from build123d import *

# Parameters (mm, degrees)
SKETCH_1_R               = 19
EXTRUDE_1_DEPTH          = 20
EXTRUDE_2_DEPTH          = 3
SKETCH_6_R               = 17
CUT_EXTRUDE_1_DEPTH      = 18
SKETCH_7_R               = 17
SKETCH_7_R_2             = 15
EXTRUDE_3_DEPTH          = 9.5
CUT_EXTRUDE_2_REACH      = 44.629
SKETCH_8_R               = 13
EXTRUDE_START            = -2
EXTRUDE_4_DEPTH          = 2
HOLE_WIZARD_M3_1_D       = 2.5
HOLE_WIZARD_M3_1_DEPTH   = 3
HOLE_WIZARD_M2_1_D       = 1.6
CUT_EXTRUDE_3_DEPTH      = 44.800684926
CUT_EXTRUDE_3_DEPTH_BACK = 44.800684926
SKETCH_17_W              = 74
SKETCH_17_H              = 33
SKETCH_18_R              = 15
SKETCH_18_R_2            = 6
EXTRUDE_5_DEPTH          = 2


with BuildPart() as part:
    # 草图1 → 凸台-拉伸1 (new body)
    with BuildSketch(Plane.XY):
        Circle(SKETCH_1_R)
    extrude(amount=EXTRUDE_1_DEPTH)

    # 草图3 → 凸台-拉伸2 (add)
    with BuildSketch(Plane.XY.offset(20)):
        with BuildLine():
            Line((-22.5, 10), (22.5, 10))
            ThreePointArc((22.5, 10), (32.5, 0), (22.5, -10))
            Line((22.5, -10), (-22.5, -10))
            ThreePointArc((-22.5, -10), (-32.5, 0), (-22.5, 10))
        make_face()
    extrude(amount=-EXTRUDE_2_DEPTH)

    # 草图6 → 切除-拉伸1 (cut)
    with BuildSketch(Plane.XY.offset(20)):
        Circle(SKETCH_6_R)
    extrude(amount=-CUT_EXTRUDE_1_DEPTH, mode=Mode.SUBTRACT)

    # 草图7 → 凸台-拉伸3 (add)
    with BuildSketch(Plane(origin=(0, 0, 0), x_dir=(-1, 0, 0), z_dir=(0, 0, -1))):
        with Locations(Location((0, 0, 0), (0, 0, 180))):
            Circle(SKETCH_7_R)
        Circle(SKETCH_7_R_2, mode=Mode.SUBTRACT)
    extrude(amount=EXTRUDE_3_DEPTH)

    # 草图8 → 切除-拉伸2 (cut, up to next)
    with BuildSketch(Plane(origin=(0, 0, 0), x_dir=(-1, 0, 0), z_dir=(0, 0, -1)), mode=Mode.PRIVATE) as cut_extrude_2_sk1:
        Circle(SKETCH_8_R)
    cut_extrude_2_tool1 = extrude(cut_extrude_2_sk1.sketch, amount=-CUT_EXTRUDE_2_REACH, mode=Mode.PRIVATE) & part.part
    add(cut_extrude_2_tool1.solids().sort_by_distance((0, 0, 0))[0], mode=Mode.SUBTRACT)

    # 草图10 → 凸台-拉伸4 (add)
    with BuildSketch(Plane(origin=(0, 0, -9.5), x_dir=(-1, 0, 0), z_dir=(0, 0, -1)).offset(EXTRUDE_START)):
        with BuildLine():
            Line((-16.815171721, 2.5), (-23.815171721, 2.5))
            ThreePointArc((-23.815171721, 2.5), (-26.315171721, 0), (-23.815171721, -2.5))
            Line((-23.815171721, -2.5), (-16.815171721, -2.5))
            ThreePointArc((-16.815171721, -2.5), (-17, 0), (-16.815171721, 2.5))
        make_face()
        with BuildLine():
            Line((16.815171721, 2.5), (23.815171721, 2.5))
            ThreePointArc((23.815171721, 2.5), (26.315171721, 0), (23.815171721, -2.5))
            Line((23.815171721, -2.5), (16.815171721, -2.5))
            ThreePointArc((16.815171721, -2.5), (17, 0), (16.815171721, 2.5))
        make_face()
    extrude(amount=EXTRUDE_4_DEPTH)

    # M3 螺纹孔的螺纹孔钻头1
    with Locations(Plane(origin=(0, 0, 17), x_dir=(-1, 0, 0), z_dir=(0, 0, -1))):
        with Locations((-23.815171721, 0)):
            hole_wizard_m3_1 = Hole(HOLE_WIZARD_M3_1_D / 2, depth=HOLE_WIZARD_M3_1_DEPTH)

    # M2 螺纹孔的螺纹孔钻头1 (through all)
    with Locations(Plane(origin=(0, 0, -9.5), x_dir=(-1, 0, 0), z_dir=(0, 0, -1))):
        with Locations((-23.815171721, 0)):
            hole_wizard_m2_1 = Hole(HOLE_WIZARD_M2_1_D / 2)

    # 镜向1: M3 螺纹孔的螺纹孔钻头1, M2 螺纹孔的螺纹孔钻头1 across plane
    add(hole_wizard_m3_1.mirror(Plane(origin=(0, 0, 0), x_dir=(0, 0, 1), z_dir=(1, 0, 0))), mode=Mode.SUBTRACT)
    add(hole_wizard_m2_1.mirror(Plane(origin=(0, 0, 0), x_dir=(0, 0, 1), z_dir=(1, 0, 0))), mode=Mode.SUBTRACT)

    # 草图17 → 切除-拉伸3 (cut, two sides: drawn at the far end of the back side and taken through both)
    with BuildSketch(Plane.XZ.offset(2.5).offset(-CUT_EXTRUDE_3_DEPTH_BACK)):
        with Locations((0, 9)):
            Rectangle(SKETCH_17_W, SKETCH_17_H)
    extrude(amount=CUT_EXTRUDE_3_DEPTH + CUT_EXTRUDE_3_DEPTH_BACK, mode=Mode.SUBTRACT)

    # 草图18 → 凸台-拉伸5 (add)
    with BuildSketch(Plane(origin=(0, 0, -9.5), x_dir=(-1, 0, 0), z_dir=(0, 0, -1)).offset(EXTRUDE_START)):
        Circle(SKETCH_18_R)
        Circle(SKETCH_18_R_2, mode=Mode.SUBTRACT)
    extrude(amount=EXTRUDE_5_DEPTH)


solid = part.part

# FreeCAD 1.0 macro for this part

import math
import FreeCAD as App
import Part
import Sketcher

doc = App.newDocument("Part")
body = doc.addObject("PartDesign::Body", "Body")

# Sketch on XY plane
sketch1 = body.newObject("Sketcher::SketchObject", "Sketch")
sketch1.AttachmentSupport = (doc.getObject("XY_Plane"), [""])
sketch1.MapMode = "FlatFace"
sketch1.addGeometry(Part.Circle(App.Vector(0, 0, 0), App.Vector(0, 0, 1), 19), False)
sketch1.addConstraint([
    Sketcher.Constraint("Coincident", 0, 3, -1, 1),
    Sketcher.Constraint("Diameter", 0, 38.0),
])
pad1 = body.newObject("PartDesign::Pad", "Pad")
pad1.Profile = sketch1
pad1.Length = 20

# Sketch on XY plane
sketch2 = body.newObject("Sketcher::SketchObject", "Sketch001")
sketch2.AttachmentSupport = (doc.getObject("XY_Plane"), [""])
sketch2.MapMode = "FlatFace"
sketch2.AttachmentOffset = App.Placement(App.Vector(0, 0, 20), App.Rotation())
sketch2.addGeometry([
    Part.LineSegment(App.Vector(22, 10, 0), App.Vector(-22, 10, 0)),
    Part.ArcOfCircle(Part.Circle(App.Vector(-22, 0, 0), App.Vector(0, 0, 1), 10), math.radians(90), math.radians(270)),
    Part.LineSegment(App.Vector(-22, -10, 0), App.Vector(22, -10, 0)),
    Part.ArcOfCircle(Part.Circle(App.Vector(22, 0, 0), App.Vector(0, 0, 1), 10), math.radians(-90), math.radians(90)),
], False)
sketch2.addConstraint([
    Sketcher.Constraint("Tangent", 0, 2, 1, 1),
    Sketcher.Constraint("Tangent", 1, 2, 2, 1),
    Sketcher.Constraint("Tangent", 2, 2, 3, 1),
    Sketcher.Constraint("Tangent", 3, 2, 0, 1),
    Sketcher.Constraint("Horizontal", 0),
    Sketcher.Constraint("Horizontal", 2),
    Sketcher.Constraint("Symmetric", 1, 3, 3, 3, -1, 1),
    Sketcher.Constraint("Radius", 1, 10.0),
    Sketcher.Constraint("DistanceX", 0, 2, 0, 1, 45.0),
])
pad2 = body.newObject("PartDesign::Pad", "Pad001")
pad2.Profile = sketch2
pad2.Length = 3
pad2.Reversed = True

# Sketch on XY plane
sketch3 = body.newObject("Sketcher::SketchObject", "Sketch002")
sketch3.AttachmentSupport = (doc.getObject("XY_Plane"), [""])
sketch3.MapMode = "FlatFace"
sketch3.AttachmentOffset = App.Placement(App.Vector(0, 0, 20), App.Rotation())
sketch3.addGeometry(Part.Circle(App.Vector(0, 0, 0), App.Vector(0, 0, 1), 17), False)
sketch3.addConstraint([
    Sketcher.Constraint("Coincident", 0, 3, -1, 1),
    Sketcher.Constraint("Diameter", 0, 34.0),
])
pocket1 = body.newObject("PartDesign::Pocket", "Pocket")
pocket1.Profile = sketch3
pocket1.Length = 18

# Sketch on XY plane
sketch4 = body.newObject("Sketcher::SketchObject", "Sketch003")
sketch4.AttachmentSupport = (doc.getObject("XY_Plane"), [""])
sketch4.MapMode = "FlatFace"
sketch4.addGeometry([
    Part.Circle(App.Vector(0, 0, 0), App.Vector(0, 0, 1), 17),
    Part.Circle(App.Vector(0, 0, 0), App.Vector(0, 0, 1), 15),
], False)
sketch4.addConstraint([
    Sketcher.Constraint("Coincident", 0, 3, -1, 1),
    Sketcher.Constraint("Coincident", 1, 3, -1, 1),
    Sketcher.Constraint("Diameter", 0, 34.0),
    Sketcher.Constraint("Diameter", 1, 30.0),
])
pad3 = body.newObject("PartDesign::Pad", "Pad002")
pad3.Profile = sketch4
pad3.Length = 9.5
pad3.Reversed = True

# Sketch on XY plane
sketch5 = body.newObject("Sketcher::SketchObject", "Sketch004")
sketch5.AttachmentSupport = (doc.getObject("XY_Plane"), [""])
sketch5.MapMode = "FlatFace"
sketch5.addGeometry(Part.Circle(App.Vector(0, 0, 0), App.Vector(0, 0, 1), 13), False)
sketch5.addConstraint([
    Sketcher.Constraint("Coincident", 0, 3, -1, 1),
    Sketcher.Constraint("Diameter", 0, 26.0),
])
pocket2 = body.newObject("PartDesign::Pocket", "Pocket001")
pocket2.Profile = sketch5
pocket2.Type = "UpToFirst"
pocket2.Reversed = True

# Sketch on XY plane
sketch6 = body.newObject("Sketcher::SketchObject", "Sketch005")
sketch6.AttachmentSupport = (doc.getObject("XY_Plane"), [""])
sketch6.MapMode = "FlatFace"
sketch6.AttachmentOffset = App.Placement(App.Vector(0, 0, -7.5), App.Rotation())
sketch6.addGeometry([
    Part.LineSegment(App.Vector(16.8, 2.5, 0), App.Vector(23.8, 2.5, 0)),  # 0
    Part.ArcOfCircle(Part.Circle(App.Vector(23.8, 0, 0), App.Vector(0, 0, 1), 2.5), math.radians(-90), math.radians(90)),  # 1
    Part.LineSegment(App.Vector(23.8, -2.5, 0), App.Vector(16.8, -2.5, 0)),  # 2
    Part.ArcOfCircle(Part.Circle(App.Vector(0, 0, 0), App.Vector(0, 0, 1), 17), math.radians(-8.46), math.radians(8.46)),  # 3
    Part.LineSegment(App.Vector(-23.8, 2.5, 0), App.Vector(-16.8, 2.5, 0)),  # 4
    Part.ArcOfCircle(Part.Circle(App.Vector(0, 0, 0), App.Vector(0, 0, 1), 17), math.radians(171.54), math.radians(188.46)),  # 5
    Part.LineSegment(App.Vector(-16.8, -2.5, 0), App.Vector(-23.8, -2.5, 0)),  # 6
    Part.ArcOfCircle(Part.Circle(App.Vector(-23.8, 0, 0), App.Vector(0, 0, 1), 2.5), math.radians(90), math.radians(270)),  # 7
], False)
sketch6.addConstraint([
    Sketcher.Constraint("Tangent", 0, 2, 1, 2),
    Sketcher.Constraint("Tangent", 1, 1, 2, 1),
    Sketcher.Constraint("Coincident", 2, 2, 3, 1),
    Sketcher.Constraint("Coincident", 3, 2, 0, 1),
    Sketcher.Constraint("Coincident", 4, 2, 5, 1),
    Sketcher.Constraint("Coincident", 5, 2, 6, 1),
    Sketcher.Constraint("Tangent", 6, 2, 7, 2),
    Sketcher.Constraint("Tangent", 7, 1, 4, 1),
    Sketcher.Constraint("Horizontal", 0),
    Sketcher.Constraint("Horizontal", 2),
    Sketcher.Constraint("Horizontal", 4),
    Sketcher.Constraint("Horizontal", 6),
    Sketcher.Constraint("Coincident", 3, 3, -1, 1),
    Sketcher.Constraint("Coincident", 5, 3, -1, 1),
    Sketcher.Constraint("Equal", 3, 5),
    Sketcher.Constraint("Equal", 1, 7),
    Sketcher.Constraint("Symmetric", 1, 3, 7, 3, -1, 1),
    Sketcher.Constraint("PointOnObject", 1, 3, -1),
    Sketcher.Constraint("Radius", 3, 17.0),
    Sketcher.Constraint("Radius", 1, 2.5),
    Sketcher.Constraint("DistanceX", 0, 1, 0, 2, 7.0),
])
pad4 = body.newObject("PartDesign::Pad", "Pad003")
pad4.Profile = sketch6
pad4.Length = 2
pad4.Reversed = True

# Sketch on XY plane
sketch7 = body.newObject("Sketcher::SketchObject", "Sketch006")
sketch7.AttachmentSupport = (doc.getObject("XY_Plane"), [""])
sketch7.MapMode = "FlatFace"
sketch7.AttachmentOffset = App.Placement(App.Vector(0, 0, 17), App.Rotation())
sketch7.addGeometry(Part.Circle(App.Vector(23.8, 0, 0), App.Vector(0, 0, 1), 1.2), False)
sketch7.addConstraint([
    Sketcher.Constraint("PointOnObject", 0, 3, -1),
    Sketcher.Constraint("Diameter", 0, 2.5),
    Sketcher.Constraint("DistanceX", -1, 1, 0, 3, 23.815172),
])
doc.recompute()
hole = body.newObject("PartDesign::Hole", "Hole")
hole.Profile = sketch7
hole.ThreadType = "None"
hole.Diameter = 2.5
hole.DepthType = "Dimension"
hole.Depth = 3
hole.DrillPoint = "Flat"
hole.Reversed = True

# Sketch on XY plane
sketch8 = body.newObject("Sketcher::SketchObject", "Sketch007")
sketch8.AttachmentSupport = (doc.getObject("XY_Plane"), [""])
sketch8.MapMode = "FlatFace"
sketch8.AttachmentOffset = App.Placement(App.Vector(0, 0, -9.5), App.Rotation())
sketch8.addGeometry(Part.Circle(App.Vector(23.8, 0, 0), App.Vector(0, 0, 1), 0.8), False)
sketch8.addConstraint([
    Sketcher.Constraint("PointOnObject", 0, 3, -1),
    Sketcher.Constraint("Diameter", 0, 1.6),
    Sketcher.Constraint("DistanceX", -1, 1, 0, 3, 23.815172),
])
doc.recompute()
hole2 = body.newObject("PartDesign::Hole", "Hole001")
hole2.Profile = sketch8
hole2.ThreadType = "None"
hole2.Diameter = 1.6
hole2.DepthType = "ThroughAll"
hole2.Reversed = True
doc.recompute()

mirrored = body.newObject("PartDesign::Mirrored", "Mirrored")
mirrored.Originals = [hole, hole2]
mirrored.MirrorPlane = (doc.getObject("YZ_Plane"), [""])
body.Tip = mirrored

# Sketch on XZ plane
sketch9 = body.newObject("Sketcher::SketchObject", "Sketch008")
sketch9.AttachmentSupport = (doc.getObject("XZ_Plane"), [""])
sketch9.MapMode = "FlatFace"
sketch9.AttachmentOffset = App.Placement(App.Vector(0, 0, 2.5), App.Rotation())
sketch9.addGeometry([
    Part.LineSegment(App.Vector(-37, 26, 0), App.Vector(-37, -8, 0)),
    Part.LineSegment(App.Vector(-37, -8, 0), App.Vector(37, -8, 0)),
    Part.LineSegment(App.Vector(37, -8, 0), App.Vector(37, 26, 0)),
    Part.LineSegment(App.Vector(37, 26, 0), App.Vector(-37, 26, 0)),
], False)
sketch9.addConstraint([
    Sketcher.Constraint("Coincident", 0, 2, 1, 1),
    Sketcher.Constraint("Coincident", 1, 2, 2, 1),
    Sketcher.Constraint("Coincident", 2, 2, 3, 1),
    Sketcher.Constraint("Coincident", 3, 2, 0, 1),
    Sketcher.Constraint("Vertical", 0),
    Sketcher.Constraint("Horizontal", 1),
    Sketcher.Constraint("Vertical", 2),
    Sketcher.Constraint("Horizontal", 3),
    Sketcher.Constraint("DistanceX", 1, 1, 1, 2, 74.0),
    Sketcher.Constraint("DistanceY", 0, 2, 0, 1, 33.0),
    Sketcher.Constraint("DistanceX", 0, 2, -1, 1, 37.0),
    Sketcher.Constraint("DistanceY", 0, 2, -1, 1, 7.5),
])
pocket3 = body.newObject("PartDesign::Pocket", "Pocket002")
pocket3.Profile = sketch9
pocket3.Type = "ThroughAll"
pocket3.Midplane = True

# Sketch on XY plane
sketch10 = body.newObject("Sketcher::SketchObject", "Sketch009")
sketch10.AttachmentSupport = (doc.getObject("XY_Plane"), [""])
sketch10.MapMode = "FlatFace"
sketch10.AttachmentOffset = App.Placement(App.Vector(0, 0, -7.5), App.Rotation())
sketch10.addGeometry([
    Part.Circle(App.Vector(0, 0, 0), App.Vector(0, 0, 1), 15),
    Part.Circle(App.Vector(0, 0, 0), App.Vector(0, 0, 1), 6),
], False)
sketch10.addConstraint([
    Sketcher.Constraint("Coincident", 0, 3, -1, 1),
    Sketcher.Constraint("Coincident", 1, 3, -1, 1),
    Sketcher.Constraint("Diameter", 0, 30.0),
    Sketcher.Constraint("Diameter", 1, 12.0),
])
pad5 = body.newObject("PartDesign::Pad", "Pad004")
pad5.Profile = sketch10
pad5.Length = 2
pad5.Reversed = True

doc.recompute()
